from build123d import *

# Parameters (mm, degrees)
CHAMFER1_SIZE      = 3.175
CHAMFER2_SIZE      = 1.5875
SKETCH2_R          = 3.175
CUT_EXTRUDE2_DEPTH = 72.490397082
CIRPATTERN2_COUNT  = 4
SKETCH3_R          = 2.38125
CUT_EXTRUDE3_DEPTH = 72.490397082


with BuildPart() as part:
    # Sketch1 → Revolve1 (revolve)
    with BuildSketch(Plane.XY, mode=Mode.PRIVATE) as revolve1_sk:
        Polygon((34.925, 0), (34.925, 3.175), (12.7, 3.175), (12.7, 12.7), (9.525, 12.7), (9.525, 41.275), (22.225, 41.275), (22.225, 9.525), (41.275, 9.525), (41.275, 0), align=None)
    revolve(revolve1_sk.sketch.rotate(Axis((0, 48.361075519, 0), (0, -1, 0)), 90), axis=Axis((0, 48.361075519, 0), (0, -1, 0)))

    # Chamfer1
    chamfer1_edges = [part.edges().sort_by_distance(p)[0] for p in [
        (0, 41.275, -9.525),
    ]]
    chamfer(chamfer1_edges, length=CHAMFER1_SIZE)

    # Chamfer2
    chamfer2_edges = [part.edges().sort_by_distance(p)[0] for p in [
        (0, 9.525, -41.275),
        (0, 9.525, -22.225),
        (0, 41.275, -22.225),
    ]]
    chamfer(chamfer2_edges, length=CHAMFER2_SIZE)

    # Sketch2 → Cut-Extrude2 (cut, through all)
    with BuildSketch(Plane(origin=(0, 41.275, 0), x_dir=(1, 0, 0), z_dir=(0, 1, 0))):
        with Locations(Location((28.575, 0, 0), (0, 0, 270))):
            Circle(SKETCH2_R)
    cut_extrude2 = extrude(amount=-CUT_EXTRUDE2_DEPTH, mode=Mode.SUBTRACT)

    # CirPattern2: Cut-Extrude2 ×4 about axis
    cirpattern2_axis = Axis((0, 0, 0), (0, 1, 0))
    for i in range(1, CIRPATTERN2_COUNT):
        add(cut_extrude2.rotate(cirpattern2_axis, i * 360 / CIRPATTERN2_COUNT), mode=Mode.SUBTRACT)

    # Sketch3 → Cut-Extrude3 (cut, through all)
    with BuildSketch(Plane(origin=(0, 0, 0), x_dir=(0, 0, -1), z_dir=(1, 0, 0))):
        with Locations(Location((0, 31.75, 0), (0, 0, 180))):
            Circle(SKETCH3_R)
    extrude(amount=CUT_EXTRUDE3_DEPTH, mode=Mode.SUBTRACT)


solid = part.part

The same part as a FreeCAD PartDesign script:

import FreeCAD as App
import Part
import Sketcher
Q = App.Units.Quantity


def edges_at(feature, points):
    """Names of the edges that pass closest to the given points."""
    edges = feature.Shape.Edges
    near = lambda p: min(range(len(edges)), key=lambda i: edges[i].distToShape(Part.Vertex(*p))[0])
    return sorted({f"Edge{near(p) + 1}" for p in points})


def add_polygon(sketch, points):
    """Adds a closed chain of lines whose ends are joined by coincident constraints."""
    first, n = sketch.GeometryCount, len(points)
    for a, b in zip(points, points[1:] + points[:1]):
        sketch.addGeometry(Part.LineSegment(App.Vector(*a, 0), App.Vector(*b, 0)), False)
    for i in range(n):
        sketch.addConstraint(Sketcher.Constraint("Coincident", first + i, 2, first + (i + 1) % n, 1))

doc = App.newDocument("Part")
body = doc.addObject("PartDesign::Body", "Body")

# Sketch on XY plane
sketch1 = body.newObject("Sketcher::SketchObject", "Sketch")
sketch1.AttachmentSupport = (doc.getObject("XY_Plane"), [""])
sketch1.MapMode = "FlatFace"
add_polygon(sketch1, [(34.9, 3.2), (34.9, 0), (41.3, 0), (41.3, 9.5), (22.2, 9.5), (22.2, 41.3), (9.5, 41.3), (9.5, 12.7), (12.7, 12.7), (12.7, 3.2)])  # lines 0-9
sketch1.addConstraint([
    Sketcher.Constraint("Vertical", 0),
    Sketcher.Constraint("Horizontal", 1),
    Sketcher.Constraint("Vertical", 2),
    Sketcher.Constraint("Horizontal", 3),
    Sketcher.Constraint("Vertical", 4),
    Sketcher.Constraint("Horizontal", 5),
    Sketcher.Constraint("Vertical", 6),
    Sketcher.Constraint("Horizontal", 7),
    Sketcher.Constraint("Vertical", 8),
    Sketcher.Constraint("Horizontal", 9),
    Sketcher.Constraint("PointOnObject", 0, 2, -1),
    Sketcher.Constraint("Equal", 7, 0),
    Sketcher.Constraint("Equal", 2, 8),
    Sketcher.Constraint("DistanceX", 5, 2, 5, 1, Q("0.5 in")),
    Sketcher.Constraint("DistanceX", 5, 2, 0, 2, Q("1 in")),
    Sketcher.Constraint("DistanceX", 1, 1, 1, 2, Q("0.25 in")),
    Sketcher.Constraint("DistanceY", 4, 1, 4, 2, Q("1.25 in")),
    Sketcher.Constraint("DistanceY", -1, 1, 6, 2, Q("0.5 in")),
    Sketcher.Constraint("DistanceX", -1, 1, 7, 2, Q("0.5 in")),
    Sketcher.Constraint("DistanceX", 7, 1, 7, 2, Q("0.125 in")),
])
revolution = body.newObject("PartDesign::Revolution", "Revolution")
revolution.Profile = sketch1
revolution.ReferenceAxis = (sketch1, ["V_Axis"])
revolution.Angle = 360
doc.recompute()

chamfer = body.newObject("PartDesign::Chamfer", "Chamfer")
chamfer.Base = (revolution, edges_at(revolution, [(0, 41.275, -9.525)]))
chamfer.Size = Q("0.125 in")
doc.recompute()

chamfer2 = body.newObject("PartDesign::Chamfer", "Chamfer001")
chamfer2.Base = (chamfer, edges_at(chamfer, [(0, 9.525, -41.275), (0, 9.525, -22.225), (0, 41.275, -22.225)]))
chamfer2.Size = Q("0.0625 in")

# Sketch on XZ plane
sketch2 = body.newObject("Sketcher::SketchObject", "Sketch001")
sketch2.AttachmentSupport = (doc.getObject("XZ_Plane"), [""])
sketch2.MapMode = "FlatFace"
sketch2.AttachmentOffset = App.Placement(App.Vector(0, 0, -1.625 * 25.4), App.Rotation())
sketch2.addGeometry(Part.Circle(App.Vector(28.6, 0, 0), App.Vector(0, 0, 1), 3.2), False)
sketch2.addConstraint([
    Sketcher.Constraint("PointOnObject", 0, 3, -1),
    Sketcher.Constraint("Diameter", 0, Q("0.25 in")),
    Sketcher.Constraint("DistanceX", -1, 1, 0, 3, Q("1.125 in")),
])
pocket1 = body.newObject("PartDesign::Pocket", "Pocket")
pocket1.Profile = sketch2
pocket1.Type = "ThroughAll"
pocket1.Reversed = True
doc.recompute()

polarpattern = body.newObject("PartDesign::PolarPattern", "PolarPattern")
polarpattern.Originals = [pocket1]
polarpattern.Axis = (doc.getObject("Y_Axis"), [""])
polarpattern.Angle = 360
polarpattern.Occurrences = 4
body.Tip = polarpattern

# Sketch on YZ plane
sketch3 = body.newObject("Sketcher::SketchObject", "Sketch002")
sketch3.AttachmentSupport = (doc.getObject("YZ_Plane"), [""])
sketch3.MapMode = "FlatFace"
sketch3.addGeometry(Part.Circle(App.Vector(31.8, 0, 0), App.Vector(0, 0, 1), 2.4), False)
sketch3.addConstraint([
    Sketcher.Constraint("PointOnObject", 0, 3, -1),
    Sketcher.Constraint("Diameter", 0, Q("0.1875 in")),
    Sketcher.Constraint("DistanceX", -1, 1, 0, 3, Q("1.25 in")),
])
pocket2 = body.newObject("PartDesign::Pocket", "Pocket001")
pocket2.Profile = sketch3
pocket2.Type = "ThroughAll"
pocket2.Reversed = True

doc.recompute()
